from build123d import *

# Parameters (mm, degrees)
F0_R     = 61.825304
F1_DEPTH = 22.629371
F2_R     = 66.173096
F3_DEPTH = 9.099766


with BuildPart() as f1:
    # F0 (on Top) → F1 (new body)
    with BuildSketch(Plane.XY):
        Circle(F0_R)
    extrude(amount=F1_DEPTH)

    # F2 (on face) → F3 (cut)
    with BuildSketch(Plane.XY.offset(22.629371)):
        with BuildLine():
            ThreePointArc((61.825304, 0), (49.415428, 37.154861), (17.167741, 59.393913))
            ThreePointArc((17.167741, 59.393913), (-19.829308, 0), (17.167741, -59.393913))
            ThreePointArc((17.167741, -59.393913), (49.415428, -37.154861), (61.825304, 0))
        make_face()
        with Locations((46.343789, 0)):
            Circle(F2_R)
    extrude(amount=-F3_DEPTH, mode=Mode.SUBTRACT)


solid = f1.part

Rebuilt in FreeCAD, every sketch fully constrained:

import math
import FreeCAD as App
import Part
import Sketcher
Q = App.Units.Quantity

doc = App.newDocument("Part")
params = doc.addObject("Spreadsheet::Sheet", "Params")
for row, (alias, value) in enumerate([
    ("pad1_length", "22.629371 mm"),
    ("pocket1_length", "9.099766 mm"),
], start=1):
    params.set(f"A{row}", alias)
    params.set(f"B{row}", "=" + value)
    params.setAlias(f"B{row}", alias)

body = doc.addObject("PartDesign::Body", "Body")

sketch1 = body.newObject("Sketcher::SketchObject", "Sketch")
sketch1.AttachmentSupport = (doc.getObject("XY_Plane"), [""])
sketch1.MapMode = "FlatFace"
sketch1.addGeometry(Part.Circle(App.Vector(0, 0, 0), App.Vector(0, 0, 1), 61.825304), False)
sketch1.addConstraint(Sketcher.Constraint("Coincident", 0, 3, -1, 1))
sketch1.addConstraint(Sketcher.Constraint("Diameter", 0, Q("123.650608 mm")))
pad1 = body.newObject("PartDesign::Pad", "Pad")
pad1.Profile = sketch1
pad1.setExpression("Length", "Params.pad1_length")

sketch2 = body.newObject("Sketcher::SketchObject", "Sketch001")
sketch2.AttachmentSupport = (doc.getObject("XY_Plane"), [""])
sketch2.MapMode = "FlatFace"
sketch2.AttachmentOffset = App.Placement(App.Vector(0, 0, 22.629371), App.Rotation())
sketch2.addGeometry(Part.ArcOfCircle(Part.Circle(App.Vector(46.343788, 0, 0), App.Vector(0, 0, 1), 66.173096), math.radians(116.161636), math.radians(243.838364)), False)
sketch2.addGeometry(Part.ArcOfCircle(Part.Circle(App.Vector(46.343789, 0, 0), App.Vector(0, 0, 1), 66.173096), math.radians(-116.161637), math.radians(116.161637)), False)
sketch2.addConstraint(Sketcher.Constraint("Tangent", 0, 1, 1, 2))
sketch2.addConstraint(Sketcher.Constraint("Coincident", 1, 1, 0, 2))
sketch2.addConstraint(Sketcher.Constraint("Symmetric", 0, 1, 1, 1, -1))
sketch2.addConstraint(Sketcher.Constraint("Radius", 0, Q("66.173096 mm")))
sketch2.addConstraint(Sketcher.Constraint("DistanceX", -1, 1, 1, 3, Q("46.343789 mm")))
sketch2.addConstraint(Sketcher.Constraint("DistanceX", -1, 1, 0, 1, Q("17.167741 mm")))
pocket1 = body.newObject("PartDesign::Pocket", "Pocket")
pocket1.Profile = sketch2
pocket1.setExpression("Length", "Params.pocket1_length")

doc.recompute()
